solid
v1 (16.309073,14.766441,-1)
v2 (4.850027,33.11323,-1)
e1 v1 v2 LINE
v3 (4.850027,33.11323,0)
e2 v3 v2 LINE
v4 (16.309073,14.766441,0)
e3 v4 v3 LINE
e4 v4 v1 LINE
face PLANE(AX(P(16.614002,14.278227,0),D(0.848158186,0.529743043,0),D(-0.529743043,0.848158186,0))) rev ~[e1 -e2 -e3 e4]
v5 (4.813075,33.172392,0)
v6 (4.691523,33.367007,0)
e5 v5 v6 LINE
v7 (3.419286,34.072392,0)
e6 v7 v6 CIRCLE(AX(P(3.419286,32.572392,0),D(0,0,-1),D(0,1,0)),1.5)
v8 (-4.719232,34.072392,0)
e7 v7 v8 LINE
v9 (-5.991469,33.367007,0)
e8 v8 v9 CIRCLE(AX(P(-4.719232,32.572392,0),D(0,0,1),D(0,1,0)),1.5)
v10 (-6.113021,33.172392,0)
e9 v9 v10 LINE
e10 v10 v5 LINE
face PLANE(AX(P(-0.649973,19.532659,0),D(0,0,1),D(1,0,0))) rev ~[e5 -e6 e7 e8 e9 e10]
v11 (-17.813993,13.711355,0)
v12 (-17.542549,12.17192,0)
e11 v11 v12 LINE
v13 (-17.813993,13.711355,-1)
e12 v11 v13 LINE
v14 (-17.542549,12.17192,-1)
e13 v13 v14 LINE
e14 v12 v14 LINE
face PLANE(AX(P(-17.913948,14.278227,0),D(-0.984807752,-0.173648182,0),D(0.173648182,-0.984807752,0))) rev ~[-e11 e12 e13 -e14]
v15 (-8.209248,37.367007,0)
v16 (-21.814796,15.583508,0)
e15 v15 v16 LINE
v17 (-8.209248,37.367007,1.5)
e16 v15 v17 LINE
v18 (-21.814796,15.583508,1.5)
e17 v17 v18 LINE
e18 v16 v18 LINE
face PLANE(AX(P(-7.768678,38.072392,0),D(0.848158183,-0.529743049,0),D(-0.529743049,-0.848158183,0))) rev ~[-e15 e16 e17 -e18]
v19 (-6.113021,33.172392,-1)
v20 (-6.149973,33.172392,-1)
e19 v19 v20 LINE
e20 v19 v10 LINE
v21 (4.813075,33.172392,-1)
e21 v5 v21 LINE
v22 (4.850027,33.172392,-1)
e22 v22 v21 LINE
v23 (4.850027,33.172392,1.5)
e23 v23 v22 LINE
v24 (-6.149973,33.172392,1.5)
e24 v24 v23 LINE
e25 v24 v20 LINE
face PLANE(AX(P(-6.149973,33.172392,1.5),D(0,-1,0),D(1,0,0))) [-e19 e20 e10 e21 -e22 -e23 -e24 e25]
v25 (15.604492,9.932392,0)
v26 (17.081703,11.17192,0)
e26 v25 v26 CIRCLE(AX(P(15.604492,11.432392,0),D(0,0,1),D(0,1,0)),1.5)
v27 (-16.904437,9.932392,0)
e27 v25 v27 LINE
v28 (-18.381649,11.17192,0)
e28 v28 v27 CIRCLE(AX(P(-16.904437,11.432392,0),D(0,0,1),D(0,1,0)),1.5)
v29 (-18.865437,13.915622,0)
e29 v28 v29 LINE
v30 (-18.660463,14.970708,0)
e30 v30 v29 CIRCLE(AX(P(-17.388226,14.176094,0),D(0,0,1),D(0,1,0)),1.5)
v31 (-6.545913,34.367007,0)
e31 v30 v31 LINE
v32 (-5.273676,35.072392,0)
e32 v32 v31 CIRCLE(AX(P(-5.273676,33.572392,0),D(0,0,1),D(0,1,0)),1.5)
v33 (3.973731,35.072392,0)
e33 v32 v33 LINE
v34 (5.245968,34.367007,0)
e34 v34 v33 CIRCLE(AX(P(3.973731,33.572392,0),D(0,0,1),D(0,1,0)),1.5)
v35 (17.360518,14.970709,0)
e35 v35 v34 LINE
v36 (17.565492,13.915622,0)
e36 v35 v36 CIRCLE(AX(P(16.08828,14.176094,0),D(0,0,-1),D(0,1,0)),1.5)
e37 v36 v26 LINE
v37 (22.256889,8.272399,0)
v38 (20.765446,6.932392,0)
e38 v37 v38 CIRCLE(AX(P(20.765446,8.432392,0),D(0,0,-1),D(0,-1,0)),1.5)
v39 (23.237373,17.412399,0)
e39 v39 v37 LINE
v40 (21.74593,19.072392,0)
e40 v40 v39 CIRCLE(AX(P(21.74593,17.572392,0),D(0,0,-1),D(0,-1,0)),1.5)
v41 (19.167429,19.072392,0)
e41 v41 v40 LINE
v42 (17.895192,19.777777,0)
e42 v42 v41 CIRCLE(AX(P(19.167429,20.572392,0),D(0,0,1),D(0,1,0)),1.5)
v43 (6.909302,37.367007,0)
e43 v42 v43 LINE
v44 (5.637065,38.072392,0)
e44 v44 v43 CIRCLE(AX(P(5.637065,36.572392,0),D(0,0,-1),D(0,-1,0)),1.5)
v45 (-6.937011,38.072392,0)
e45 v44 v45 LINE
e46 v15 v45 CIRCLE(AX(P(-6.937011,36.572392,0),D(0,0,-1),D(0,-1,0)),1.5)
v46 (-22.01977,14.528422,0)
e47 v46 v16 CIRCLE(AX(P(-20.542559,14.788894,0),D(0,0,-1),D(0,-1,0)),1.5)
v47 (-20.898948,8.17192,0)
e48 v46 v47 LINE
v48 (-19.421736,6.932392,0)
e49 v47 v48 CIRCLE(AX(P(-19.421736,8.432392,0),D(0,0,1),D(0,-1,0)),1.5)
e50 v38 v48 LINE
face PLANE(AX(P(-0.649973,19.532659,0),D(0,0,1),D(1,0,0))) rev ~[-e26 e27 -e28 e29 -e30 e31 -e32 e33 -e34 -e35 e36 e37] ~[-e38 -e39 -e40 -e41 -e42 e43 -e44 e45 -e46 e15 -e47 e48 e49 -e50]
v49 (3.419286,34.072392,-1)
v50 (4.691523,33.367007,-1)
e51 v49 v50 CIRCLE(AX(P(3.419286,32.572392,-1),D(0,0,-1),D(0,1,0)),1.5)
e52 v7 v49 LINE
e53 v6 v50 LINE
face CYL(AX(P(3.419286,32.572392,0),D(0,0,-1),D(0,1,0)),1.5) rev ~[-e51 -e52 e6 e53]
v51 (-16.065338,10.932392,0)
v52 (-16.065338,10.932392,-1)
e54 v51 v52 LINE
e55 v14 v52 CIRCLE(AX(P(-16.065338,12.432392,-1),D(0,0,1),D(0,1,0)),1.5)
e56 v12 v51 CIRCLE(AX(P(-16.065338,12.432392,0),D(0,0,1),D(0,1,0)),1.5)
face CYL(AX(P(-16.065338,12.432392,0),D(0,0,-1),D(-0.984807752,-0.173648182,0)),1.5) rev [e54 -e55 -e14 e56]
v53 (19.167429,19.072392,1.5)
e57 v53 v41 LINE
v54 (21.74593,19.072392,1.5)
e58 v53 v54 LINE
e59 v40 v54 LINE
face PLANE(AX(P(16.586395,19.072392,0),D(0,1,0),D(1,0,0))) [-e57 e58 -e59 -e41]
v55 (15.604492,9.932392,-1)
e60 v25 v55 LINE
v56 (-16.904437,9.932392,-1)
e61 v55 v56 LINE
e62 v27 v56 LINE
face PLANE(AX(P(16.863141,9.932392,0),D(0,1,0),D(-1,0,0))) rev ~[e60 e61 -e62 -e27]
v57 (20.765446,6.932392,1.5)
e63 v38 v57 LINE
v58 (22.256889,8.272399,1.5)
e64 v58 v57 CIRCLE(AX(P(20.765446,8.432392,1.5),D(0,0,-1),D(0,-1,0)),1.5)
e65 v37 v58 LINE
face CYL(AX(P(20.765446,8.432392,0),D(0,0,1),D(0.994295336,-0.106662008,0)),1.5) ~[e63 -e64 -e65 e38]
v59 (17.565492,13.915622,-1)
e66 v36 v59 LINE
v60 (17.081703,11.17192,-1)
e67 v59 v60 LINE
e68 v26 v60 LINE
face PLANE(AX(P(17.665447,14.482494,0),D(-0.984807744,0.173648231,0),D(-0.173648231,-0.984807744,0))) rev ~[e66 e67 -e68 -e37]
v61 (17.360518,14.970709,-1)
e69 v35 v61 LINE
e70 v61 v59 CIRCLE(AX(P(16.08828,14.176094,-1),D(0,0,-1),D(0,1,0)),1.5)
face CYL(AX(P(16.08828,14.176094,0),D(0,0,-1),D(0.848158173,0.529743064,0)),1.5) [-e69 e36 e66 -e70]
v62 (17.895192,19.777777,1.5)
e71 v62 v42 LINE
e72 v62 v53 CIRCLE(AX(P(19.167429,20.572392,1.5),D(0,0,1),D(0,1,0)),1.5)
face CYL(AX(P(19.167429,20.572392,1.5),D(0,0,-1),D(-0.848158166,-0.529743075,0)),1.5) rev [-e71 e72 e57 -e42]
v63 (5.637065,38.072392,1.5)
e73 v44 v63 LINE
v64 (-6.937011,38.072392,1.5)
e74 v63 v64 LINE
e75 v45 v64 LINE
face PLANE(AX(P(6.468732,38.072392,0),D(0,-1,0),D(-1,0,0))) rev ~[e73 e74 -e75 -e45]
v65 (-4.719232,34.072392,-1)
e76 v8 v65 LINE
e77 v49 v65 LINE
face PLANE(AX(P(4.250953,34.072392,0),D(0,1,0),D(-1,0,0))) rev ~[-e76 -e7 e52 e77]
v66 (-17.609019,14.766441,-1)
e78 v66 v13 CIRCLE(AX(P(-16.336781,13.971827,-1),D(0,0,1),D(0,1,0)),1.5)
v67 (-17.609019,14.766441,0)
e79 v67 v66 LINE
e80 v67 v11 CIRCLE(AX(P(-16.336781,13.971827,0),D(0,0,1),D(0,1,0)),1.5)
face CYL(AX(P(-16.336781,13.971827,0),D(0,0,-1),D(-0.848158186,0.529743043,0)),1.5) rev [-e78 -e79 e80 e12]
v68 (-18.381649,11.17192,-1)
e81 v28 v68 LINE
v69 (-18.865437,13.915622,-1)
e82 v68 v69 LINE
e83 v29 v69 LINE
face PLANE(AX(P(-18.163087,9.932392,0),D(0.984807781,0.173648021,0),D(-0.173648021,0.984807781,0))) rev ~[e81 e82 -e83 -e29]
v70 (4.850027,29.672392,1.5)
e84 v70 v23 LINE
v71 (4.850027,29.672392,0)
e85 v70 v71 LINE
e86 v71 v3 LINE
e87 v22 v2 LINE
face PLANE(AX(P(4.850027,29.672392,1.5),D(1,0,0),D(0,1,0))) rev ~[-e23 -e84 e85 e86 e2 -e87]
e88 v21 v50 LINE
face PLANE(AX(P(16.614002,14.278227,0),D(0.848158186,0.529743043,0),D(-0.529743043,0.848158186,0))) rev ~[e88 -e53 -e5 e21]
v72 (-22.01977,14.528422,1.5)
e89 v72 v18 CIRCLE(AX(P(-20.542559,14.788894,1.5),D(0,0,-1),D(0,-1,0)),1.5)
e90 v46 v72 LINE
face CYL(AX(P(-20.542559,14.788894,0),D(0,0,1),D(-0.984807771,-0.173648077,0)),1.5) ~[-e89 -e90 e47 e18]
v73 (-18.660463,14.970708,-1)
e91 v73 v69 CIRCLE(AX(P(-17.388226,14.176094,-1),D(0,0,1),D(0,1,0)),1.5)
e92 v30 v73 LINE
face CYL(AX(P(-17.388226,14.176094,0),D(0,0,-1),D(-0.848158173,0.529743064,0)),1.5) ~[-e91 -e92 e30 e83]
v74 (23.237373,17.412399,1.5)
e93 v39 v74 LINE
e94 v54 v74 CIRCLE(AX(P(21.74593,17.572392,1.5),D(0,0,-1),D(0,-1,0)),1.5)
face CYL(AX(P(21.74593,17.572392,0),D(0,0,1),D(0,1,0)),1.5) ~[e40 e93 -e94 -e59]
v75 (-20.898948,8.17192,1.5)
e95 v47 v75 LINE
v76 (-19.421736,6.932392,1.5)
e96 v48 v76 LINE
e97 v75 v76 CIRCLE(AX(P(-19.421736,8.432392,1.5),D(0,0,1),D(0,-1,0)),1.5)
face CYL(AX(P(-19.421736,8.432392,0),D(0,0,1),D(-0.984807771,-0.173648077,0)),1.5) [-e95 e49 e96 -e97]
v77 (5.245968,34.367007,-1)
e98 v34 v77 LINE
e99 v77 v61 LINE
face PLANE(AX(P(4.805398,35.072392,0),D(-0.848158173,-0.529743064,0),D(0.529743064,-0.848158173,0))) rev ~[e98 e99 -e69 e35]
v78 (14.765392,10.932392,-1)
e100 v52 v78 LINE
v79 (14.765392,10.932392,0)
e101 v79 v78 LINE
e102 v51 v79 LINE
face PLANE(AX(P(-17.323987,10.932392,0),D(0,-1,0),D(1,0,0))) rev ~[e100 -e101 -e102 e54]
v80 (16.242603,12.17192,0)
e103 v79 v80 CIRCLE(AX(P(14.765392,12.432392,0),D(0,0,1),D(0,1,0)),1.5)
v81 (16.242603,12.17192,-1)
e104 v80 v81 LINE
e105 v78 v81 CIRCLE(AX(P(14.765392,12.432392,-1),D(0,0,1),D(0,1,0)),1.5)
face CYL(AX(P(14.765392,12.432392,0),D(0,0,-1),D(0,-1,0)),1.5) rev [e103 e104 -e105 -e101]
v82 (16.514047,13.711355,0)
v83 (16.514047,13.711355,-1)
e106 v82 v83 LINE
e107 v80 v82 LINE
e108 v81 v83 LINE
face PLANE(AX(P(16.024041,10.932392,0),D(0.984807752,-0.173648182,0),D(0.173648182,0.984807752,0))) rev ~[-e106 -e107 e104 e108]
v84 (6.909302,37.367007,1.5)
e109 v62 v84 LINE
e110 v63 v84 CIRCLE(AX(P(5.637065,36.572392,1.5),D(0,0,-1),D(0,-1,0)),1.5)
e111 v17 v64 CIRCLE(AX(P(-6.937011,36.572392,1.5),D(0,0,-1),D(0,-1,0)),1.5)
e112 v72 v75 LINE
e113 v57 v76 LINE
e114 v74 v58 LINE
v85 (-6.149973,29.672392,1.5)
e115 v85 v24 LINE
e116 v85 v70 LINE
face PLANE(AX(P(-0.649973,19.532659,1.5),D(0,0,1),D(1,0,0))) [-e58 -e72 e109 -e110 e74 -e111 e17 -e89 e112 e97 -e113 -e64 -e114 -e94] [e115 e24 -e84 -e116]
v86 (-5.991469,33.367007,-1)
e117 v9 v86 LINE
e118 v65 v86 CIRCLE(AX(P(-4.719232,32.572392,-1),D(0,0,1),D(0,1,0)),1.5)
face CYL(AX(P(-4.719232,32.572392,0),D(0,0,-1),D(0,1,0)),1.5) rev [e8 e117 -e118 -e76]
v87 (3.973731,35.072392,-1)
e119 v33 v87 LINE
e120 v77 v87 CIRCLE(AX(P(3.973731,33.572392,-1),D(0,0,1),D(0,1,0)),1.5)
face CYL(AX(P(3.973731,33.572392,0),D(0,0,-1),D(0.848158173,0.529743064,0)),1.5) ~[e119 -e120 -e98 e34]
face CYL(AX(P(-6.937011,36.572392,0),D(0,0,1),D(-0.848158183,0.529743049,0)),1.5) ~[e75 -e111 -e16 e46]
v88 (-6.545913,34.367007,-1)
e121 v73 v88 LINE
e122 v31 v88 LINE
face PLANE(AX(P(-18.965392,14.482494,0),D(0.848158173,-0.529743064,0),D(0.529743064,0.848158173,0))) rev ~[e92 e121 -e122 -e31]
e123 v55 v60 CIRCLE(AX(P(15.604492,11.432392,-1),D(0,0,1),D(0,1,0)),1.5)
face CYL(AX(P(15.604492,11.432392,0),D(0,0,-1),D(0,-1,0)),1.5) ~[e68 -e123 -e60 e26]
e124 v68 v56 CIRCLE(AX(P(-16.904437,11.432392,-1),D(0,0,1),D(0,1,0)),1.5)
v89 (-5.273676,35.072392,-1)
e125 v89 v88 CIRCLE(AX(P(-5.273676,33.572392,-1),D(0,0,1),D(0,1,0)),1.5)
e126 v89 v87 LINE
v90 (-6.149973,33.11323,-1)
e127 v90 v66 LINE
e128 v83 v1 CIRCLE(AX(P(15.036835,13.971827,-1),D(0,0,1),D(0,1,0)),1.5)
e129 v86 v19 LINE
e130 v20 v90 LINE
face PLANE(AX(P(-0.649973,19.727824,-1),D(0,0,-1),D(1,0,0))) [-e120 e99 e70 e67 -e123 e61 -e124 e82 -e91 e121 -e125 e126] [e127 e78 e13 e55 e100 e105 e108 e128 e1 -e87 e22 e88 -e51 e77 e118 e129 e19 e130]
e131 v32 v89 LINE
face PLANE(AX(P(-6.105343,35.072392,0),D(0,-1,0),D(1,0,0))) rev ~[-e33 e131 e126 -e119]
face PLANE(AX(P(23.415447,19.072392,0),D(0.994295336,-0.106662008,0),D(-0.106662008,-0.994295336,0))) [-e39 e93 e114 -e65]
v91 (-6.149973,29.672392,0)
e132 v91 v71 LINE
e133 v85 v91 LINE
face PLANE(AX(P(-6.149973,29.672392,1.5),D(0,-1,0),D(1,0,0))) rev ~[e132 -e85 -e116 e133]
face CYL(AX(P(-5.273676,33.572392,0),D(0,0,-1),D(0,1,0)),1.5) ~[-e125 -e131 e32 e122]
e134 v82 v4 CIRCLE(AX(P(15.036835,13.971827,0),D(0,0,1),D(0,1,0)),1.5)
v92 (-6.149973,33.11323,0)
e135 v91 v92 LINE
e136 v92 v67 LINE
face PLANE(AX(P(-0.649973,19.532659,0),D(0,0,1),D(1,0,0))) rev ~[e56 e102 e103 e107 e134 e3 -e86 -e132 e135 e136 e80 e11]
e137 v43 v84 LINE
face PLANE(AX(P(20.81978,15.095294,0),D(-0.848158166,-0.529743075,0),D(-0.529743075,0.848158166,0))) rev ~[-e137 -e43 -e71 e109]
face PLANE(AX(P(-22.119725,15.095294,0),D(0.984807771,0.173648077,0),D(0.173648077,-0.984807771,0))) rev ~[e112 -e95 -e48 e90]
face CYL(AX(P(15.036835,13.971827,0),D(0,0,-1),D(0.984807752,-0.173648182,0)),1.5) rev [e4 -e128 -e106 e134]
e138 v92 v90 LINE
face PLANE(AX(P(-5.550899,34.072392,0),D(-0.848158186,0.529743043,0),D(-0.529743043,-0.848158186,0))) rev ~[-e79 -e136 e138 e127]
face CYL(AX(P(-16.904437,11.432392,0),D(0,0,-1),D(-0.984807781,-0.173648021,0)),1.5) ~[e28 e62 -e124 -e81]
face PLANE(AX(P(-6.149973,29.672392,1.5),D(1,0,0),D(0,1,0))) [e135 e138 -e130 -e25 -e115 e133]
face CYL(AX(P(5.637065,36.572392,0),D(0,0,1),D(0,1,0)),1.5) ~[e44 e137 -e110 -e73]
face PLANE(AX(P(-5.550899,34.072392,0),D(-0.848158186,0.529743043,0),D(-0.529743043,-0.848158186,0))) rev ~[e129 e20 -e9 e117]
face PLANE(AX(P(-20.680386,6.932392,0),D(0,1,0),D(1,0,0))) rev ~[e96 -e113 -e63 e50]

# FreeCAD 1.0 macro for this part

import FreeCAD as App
import Part
import Sketcher
from FreeCAD import Vector
Q = App.Units.Quantity


def edges_at(feature, points):
    """Names of the edges that pass closest to the given points."""
    edges = feature.Shape.Edges
    near = lambda p: min(range(len(edges)), key=lambda i: edges[i].distToShape(Part.Vertex(*p))[0])
    return sorted({f"Edge{near(p) + 1}" for p in points})

doc = App.newDocument("Part")
body = doc.addObject("PartDesign::Body", "Body")

sketch1 = doc.addObject("Sketcher::SketchObject", "Sketch")
body.addObject(sketch1)
sketch1.AttachmentSupport = (doc.XY_Plane, [""])
sketch1.MapMode = "FlatFace"
sketch1.addGeometry(Part.LineSegment(Vector(6, 38, 0), Vector(-8, 38, 0)), False)
sketch1.addGeometry(Part.LineSegment(Vector(-8, 38, 0), Vector(-22, 15, 0)), False)
sketch1.addGeometry(Part.LineSegment(Vector(-22, 15, 0), Vector(-21, 7, 0)), False)
sketch1.addGeometry(Part.LineSegment(Vector(-21, 7, 0), Vector(19, 7, 0)), False)
sketch1.addGeometry(Part.LineSegment(Vector(19, 7, 0), Vector(21, 15, 0)), False)
sketch1.addGeometry(Part.LineSegment(Vector(21, 15, 0), Vector(6, 38, 0)), False)
sketch1.addConstraint(Sketcher.Constraint("Coincident", 0, 2, 1, 1))
sketch1.addConstraint(Sketcher.Constraint("Coincident", 1, 2, 2, 1))
sketch1.addConstraint(Sketcher.Constraint("Coincident", 2, 2, 3, 1))
sketch1.addConstraint(Sketcher.Constraint("Coincident", 3, 2, 4, 1))
sketch1.addConstraint(Sketcher.Constraint("Coincident", 4, 2, 5, 1))
sketch1.addConstraint(Sketcher.Constraint("Coincident", 5, 2, 0, 1))
sketch1.addConstraint(Sketcher.Constraint("Horizontal", 0))
sketch1.addConstraint(Sketcher.Constraint("Horizontal", 3))
sketch1.addConstraint(Sketcher.Constraint("Horizontal", 1, 2, 4, 2))
sketch1.addConstraint(Sketcher.Constraint("Equal", 2, 4))
sketch1.addConstraint(Sketcher.Constraint("Equal", 1, 5))
sketch1.addConstraint(Sketcher.Constraint("Angle", 2, Q("-80.000006 deg")))
sketch1.addConstraint(Sketcher.Constraint("DistanceY", 2, 2, 0, 2, Q("31.14 mm")))
sketch1.addConstraint(Sketcher.Constraint("DistanceX", 0, 2, 0, 1, Q("14.23741 mm")))
sketch1.addConstraint(Sketcher.Constraint("Distance", 1, Q("27.090581 mm")))
sketch1.addConstraint(Sketcher.Constraint("DistanceX", 3, 1, 3, 2, Q("40.060826 mm")))
sketch1.addConstraint(Sketcher.Constraint("DistanceX", 0, 2, -1, 1, Q("7.768678 mm")))
sketch1.addConstraint(Sketcher.Constraint("DistanceY", -1, 1, 0, 2, Q("38.072392 mm")))
pad1 = doc.addObject("PartDesign::Pad", "Pad")
body.addObject(pad1)
pad1.Profile = sketch1
pad1.Length = 1.5

sketch2 = doc.addObject("Sketcher::SketchObject", "Sketch001")
body.addObject(sketch2)
sketch2.AttachmentSupport = (doc.XY_Plane, [""])
sketch2.MapMode = "FlatFace"
sketch2.addGeometry(Part.LineSegment(Vector(-18.2, 9.9, 0), Vector(-19, 14.5, 0)), False)
sketch2.addGeometry(Part.LineSegment(Vector(-19, 14.5, 0), Vector(-6.1, 35.1, 0)), False)
sketch2.addGeometry(Part.LineSegment(Vector(-6.1, 35.1, 0), Vector(4.8, 35.1, 0)), False)
sketch2.addGeometry(Part.LineSegment(Vector(4.8, 35.1, 0), Vector(17.7, 14.5, 0)), False)
sketch2.addGeometry(Part.LineSegment(Vector(17.7, 14.5, 0), Vector(16.9, 9.9, 0)), False)
sketch2.addGeometry(Part.LineSegment(Vector(16.9, 9.9, 0), Vector(-18.2, 9.9, 0)), False)
sketch2.addGeometry(Part.LineSegment(Vector(16.6, 14.3, 0), Vector(4.3, 34.1, 0)), False)
sketch2.addGeometry(Part.LineSegment(Vector(4.3, 34.1, 0), Vector(-5.6, 34.1, 0)), False)
sketch2.addGeometry(Part.LineSegment(Vector(-5.6, 34.1, 0), Vector(-17.9, 14.3, 0)), False)
sketch2.addGeometry(Part.LineSegment(Vector(-17.9, 14.3, 0), Vector(-17.3, 10.9, 0)), False)
sketch2.addGeometry(Part.LineSegment(Vector(-17.3, 10.9, 0), Vector(16, 10.9, 0)), False)
sketch2.addGeometry(Part.LineSegment(Vector(16, 10.9, 0), Vector(16.6, 14.3, 0)), False)
sketch2.addConstraint(Sketcher.Constraint("Coincident", 0, 2, 1, 1))
sketch2.addConstraint(Sketcher.Constraint("Coincident", 1, 2, 2, 1))
sketch2.addConstraint(Sketcher.Constraint("Coincident", 2, 2, 3, 1))
sketch2.addConstraint(Sketcher.Constraint("Coincident", 3, 2, 4, 1))
sketch2.addConstraint(Sketcher.Constraint("Coincident", 4, 2, 5, 1))
sketch2.addConstraint(Sketcher.Constraint("Coincident", 5, 2, 0, 1))
sketch2.addConstraint(Sketcher.Constraint("Coincident", 6, 2, 7, 1))
sketch2.addConstraint(Sketcher.Constraint("Coincident", 7, 2, 8, 1))
sketch2.addConstraint(Sketcher.Constraint("Coincident", 8, 2, 9, 1))
sketch2.addConstraint(Sketcher.Constraint("Coincident", 9, 2, 10, 1))
sketch2.addConstraint(Sketcher.Constraint("Coincident", 10, 2, 11, 1))
sketch2.addConstraint(Sketcher.Constraint("Coincident", 11, 2, 6, 1))
sketch2.addConstraint(Sketcher.Constraint("Horizontal", 2))
sketch2.addConstraint(Sketcher.Constraint("Horizontal", 5))
sketch2.addConstraint(Sketcher.Constraint("Horizontal", 7))
sketch2.addConstraint(Sketcher.Constraint("Horizontal", 10))
sketch2.addConstraint(Sketcher.Constraint("Parallel", 3, 6))
sketch2.addConstraint(Sketcher.Constraint("Parallel", 1, 8))
sketch2.addConstraint(Sketcher.Constraint("Parallel", 0, 9))
sketch2.addConstraint(Sketcher.Constraint("Parallel", 4, 11))
sketch2.addConstraint(Sketcher.Constraint("Horizontal", 0, 2, 3, 2))
sketch2.addConstraint(Sketcher.Constraint("Horizontal", 8, 2, 11, 2))
sketch2.addConstraint(Sketcher.Constraint("Equal", 1, 3))
sketch2.addConstraint(Sketcher.Constraint("Equal", 0, 4))
sketch2.addConstraint(Sketcher.Constraint("Angle", 0, Q("99.999991 deg")))
sketch2.addConstraint(Sketcher.Constraint("DistanceY", 6, 2, 2, 2, Q("1 mm")))
sketch2.addConstraint(Sketcher.Constraint("DistanceY", 5, 2, 9, 2, Q("1 mm")))
sketch2.addConstraint(Sketcher.Constraint("DistanceY", 4, 2, 2, 2, Q("25.14 mm")))
sketch2.addConstraint(Sketcher.Constraint("DistanceX", -1, 1, 11, 2, Q("16.614002 mm")))
sketch2.addConstraint(Sketcher.Constraint("DistanceX", 2, 1, 2, 2, Q("10.910741 mm")))
sketch2.addConstraint(Sketcher.Constraint("DistanceX", 5, 2, 5, 1, Q("35.026228 mm")))
sketch2.addConstraint(Sketcher.Constraint("DistanceX", -1, 1, 2, 2, Q("4.805398 mm")))
sketch2.addConstraint(Sketcher.Constraint("DistanceX", 7, 2, -1, 1, Q("5.550899 mm")))
sketch2.addConstraint(Sketcher.Constraint("DistanceX", 5, 2, 9, 2, Q("0.8391 mm")))
sketch2.addConstraint(Sketcher.Constraint("DistanceX", 10, 2, 4, 2, Q("0.8391 mm")))
sketch2.addConstraint(Sketcher.Constraint("DistanceY", -1, 1, 0, 2, Q("14.482494 mm")))
pad2 = doc.addObject("PartDesign::Pad", "Pad001")
body.addObject(pad2)
pad2.Profile = sketch2
pad2.Length = 1
pad2.Reversed = True

sketch3 = doc.addObject("Sketcher::SketchObject", "Sketch002")
body.addObject(sketch3)
sketch3.AttachmentSupport = (doc.XY_Plane, [""])
sketch3.MapMode = "FlatFace"
sketch3.addGeometry(Part.LineSegment(Vector(16.9, 6.9, 0), Vector(16.9, 9.9, 0)), False)
sketch3.addGeometry(Part.LineSegment(Vector(16.9, 9.9, 0), Vector(16.6, 19.1, 0)), False)
sketch3.addGeometry(Part.LineSegment(Vector(16.6, 19.1, 0), Vector(23.4, 19.1, 0)), False)
sketch3.addGeometry(Part.LineSegment(Vector(23.4, 19.1, 0), Vector(22.1, 6.9, 0)), False)
sketch3.addGeometry(Part.LineSegment(Vector(22.1, 6.9, 0), Vector(16.9, 6.9, 0)), False)
sketch3.addConstraint(Sketcher.Constraint("Coincident", 0, 2, 1, 1))
sketch3.addConstraint(Sketcher.Constraint("Coincident", 1, 2, 2, 1))
sketch3.addConstraint(Sketcher.Constraint("Coincident", 2, 2, 3, 1))
sketch3.addConstraint(Sketcher.Constraint("Coincident", 3, 2, 4, 1))
sketch3.addConstraint(Sketcher.Constraint("Coincident", 4, 2, 0, 1))
sketch3.addConstraint(Sketcher.Constraint("Vertical", 0))
sketch3.addConstraint(Sketcher.Constraint("Horizontal", 2))
sketch3.addConstraint(Sketcher.Constraint("Horizontal", 4))
sketch3.addConstraint(Sketcher.Constraint("DistanceY", 0, 1, 0, 2, Q("3 mm")))
sketch3.addConstraint(Sketcher.Constraint("DistanceX", 4, 2, 4, 1, Q("5.25 mm")))
sketch3.addConstraint(Sketcher.Constraint("DistanceY", 0, 2, 1, 2, Q("9.14 mm")))
sketch3.addConstraint(Sketcher.Constraint("Distance", 1, Q("9.144189 mm")))
sketch3.addConstraint(Sketcher.Constraint("Distance", 3, Q("12.209652 mm")))
sketch3.addConstraint(Sketcher.Constraint("DistanceX", -1, 1, 0, 2, Q("16.863141 mm")))
sketch3.addConstraint(Sketcher.Constraint("DistanceY", -1, 1, 0, 2, Q("9.932392 mm")))
pad3 = doc.addObject("PartDesign::Pad", "Pad002")
body.addObject(pad3)
pad3.Profile = sketch3
pad3.Length = 1.5
doc.recompute()

fillet = doc.addObject("PartDesign::Fillet", "Fillet")
body.addObject(fillet)
fillet.Base = (pad3, edges_at(pad3, [
    (23.415, 19.072, 0.75),
    (18.336, 19.072, 0.75),
    (22.113, 6.932, 0.75),
    (-20.68, 6.932, 0.75),
    (-22.12, 15.095, 0.75),
    (-7.769, 38.072, 0.75),
    (6.469, 38.072, 0.75),
    (4.805, 35.072, -0.5),
    (-6.105, 35.072, -0.5),
    (-18.965, 14.482, -0.5),
    (-18.163, 9.932, -0.5),
    (16.863, 9.932, -0.5),
    (17.665, 14.482, -0.5),
    (-17.324, 10.932, -0.5),
    (-17.914, 14.278, -0.5),
    (-5.551, 34.072, -0.5),
    (4.251, 34.072, -0.5),
    (16.024, 10.932, -0.5),
    (16.614, 14.278, -0.5),
]))
fillet.Radius = 1.5

sketch4 = doc.addObject("Sketcher::SketchObject", "Sketch003")
body.addObject(sketch4)
sketch4.AttachmentSupport = (doc.XY_Plane, [""])
sketch4.MapMode = "FlatFace"
sketch4.AttachmentOffset = App.Placement(Vector(0, 0, 1.5), App.Rotation())
sketch4.addGeometry(Part.LineSegment(Vector(-6.1, 33.2, 0), Vector(-6.1, 29.7, 0)), False)
sketch4.addGeometry(Part.LineSegment(Vector(-6.1, 29.7, 0), Vector(4.9, 29.7, 0)), False)
sketch4.addGeometry(Part.LineSegment(Vector(4.9, 29.7, 0), Vector(4.9, 33.2, 0)), False)
sketch4.addGeometry(Part.LineSegment(Vector(4.9, 33.2, 0), Vector(-6.1, 33.2, 0)), False)
sketch4.addConstraint(Sketcher.Constraint("Coincident", 0, 2, 1, 1))
sketch4.addConstraint(Sketcher.Constraint("Coincident", 1, 2, 2, 1))
sketch4.addConstraint(Sketcher.Constraint("Coincident", 2, 2, 3, 1))
sketch4.addConstraint(Sketcher.Constraint("Coincident", 3, 2, 0, 1))
sketch4.addConstraint(Sketcher.Constraint("Vertical", 0))
sketch4.addConstraint(Sketcher.Constraint("Horizontal", 1))
sketch4.addConstraint(Sketcher.Constraint("Vertical", 2))
sketch4.addConstraint(Sketcher.Constraint("Horizontal", 3))
sketch4.addConstraint(Sketcher.Constraint("DistanceX", 1, 1, 1, 2, Q("11 mm")))
sketch4.addConstraint(Sketcher.Constraint("DistanceY", 0, 2, 0, 1, Q("3.5 mm")))
sketch4.addConstraint(Sketcher.Constraint("DistanceY", -1, 1, 0, 2, Q("29.672392 mm")))
sketch4.addConstraint(Sketcher.Constraint("DistanceX", 0, 2, -1, 1, Q("6.149973 mm")))
pocket1 = doc.addObject("PartDesign::Pocket", "Pocket")
body.addObject(pocket1)
pocket1.Profile = sketch4
pocket1.Length = 25

doc.recompute()
